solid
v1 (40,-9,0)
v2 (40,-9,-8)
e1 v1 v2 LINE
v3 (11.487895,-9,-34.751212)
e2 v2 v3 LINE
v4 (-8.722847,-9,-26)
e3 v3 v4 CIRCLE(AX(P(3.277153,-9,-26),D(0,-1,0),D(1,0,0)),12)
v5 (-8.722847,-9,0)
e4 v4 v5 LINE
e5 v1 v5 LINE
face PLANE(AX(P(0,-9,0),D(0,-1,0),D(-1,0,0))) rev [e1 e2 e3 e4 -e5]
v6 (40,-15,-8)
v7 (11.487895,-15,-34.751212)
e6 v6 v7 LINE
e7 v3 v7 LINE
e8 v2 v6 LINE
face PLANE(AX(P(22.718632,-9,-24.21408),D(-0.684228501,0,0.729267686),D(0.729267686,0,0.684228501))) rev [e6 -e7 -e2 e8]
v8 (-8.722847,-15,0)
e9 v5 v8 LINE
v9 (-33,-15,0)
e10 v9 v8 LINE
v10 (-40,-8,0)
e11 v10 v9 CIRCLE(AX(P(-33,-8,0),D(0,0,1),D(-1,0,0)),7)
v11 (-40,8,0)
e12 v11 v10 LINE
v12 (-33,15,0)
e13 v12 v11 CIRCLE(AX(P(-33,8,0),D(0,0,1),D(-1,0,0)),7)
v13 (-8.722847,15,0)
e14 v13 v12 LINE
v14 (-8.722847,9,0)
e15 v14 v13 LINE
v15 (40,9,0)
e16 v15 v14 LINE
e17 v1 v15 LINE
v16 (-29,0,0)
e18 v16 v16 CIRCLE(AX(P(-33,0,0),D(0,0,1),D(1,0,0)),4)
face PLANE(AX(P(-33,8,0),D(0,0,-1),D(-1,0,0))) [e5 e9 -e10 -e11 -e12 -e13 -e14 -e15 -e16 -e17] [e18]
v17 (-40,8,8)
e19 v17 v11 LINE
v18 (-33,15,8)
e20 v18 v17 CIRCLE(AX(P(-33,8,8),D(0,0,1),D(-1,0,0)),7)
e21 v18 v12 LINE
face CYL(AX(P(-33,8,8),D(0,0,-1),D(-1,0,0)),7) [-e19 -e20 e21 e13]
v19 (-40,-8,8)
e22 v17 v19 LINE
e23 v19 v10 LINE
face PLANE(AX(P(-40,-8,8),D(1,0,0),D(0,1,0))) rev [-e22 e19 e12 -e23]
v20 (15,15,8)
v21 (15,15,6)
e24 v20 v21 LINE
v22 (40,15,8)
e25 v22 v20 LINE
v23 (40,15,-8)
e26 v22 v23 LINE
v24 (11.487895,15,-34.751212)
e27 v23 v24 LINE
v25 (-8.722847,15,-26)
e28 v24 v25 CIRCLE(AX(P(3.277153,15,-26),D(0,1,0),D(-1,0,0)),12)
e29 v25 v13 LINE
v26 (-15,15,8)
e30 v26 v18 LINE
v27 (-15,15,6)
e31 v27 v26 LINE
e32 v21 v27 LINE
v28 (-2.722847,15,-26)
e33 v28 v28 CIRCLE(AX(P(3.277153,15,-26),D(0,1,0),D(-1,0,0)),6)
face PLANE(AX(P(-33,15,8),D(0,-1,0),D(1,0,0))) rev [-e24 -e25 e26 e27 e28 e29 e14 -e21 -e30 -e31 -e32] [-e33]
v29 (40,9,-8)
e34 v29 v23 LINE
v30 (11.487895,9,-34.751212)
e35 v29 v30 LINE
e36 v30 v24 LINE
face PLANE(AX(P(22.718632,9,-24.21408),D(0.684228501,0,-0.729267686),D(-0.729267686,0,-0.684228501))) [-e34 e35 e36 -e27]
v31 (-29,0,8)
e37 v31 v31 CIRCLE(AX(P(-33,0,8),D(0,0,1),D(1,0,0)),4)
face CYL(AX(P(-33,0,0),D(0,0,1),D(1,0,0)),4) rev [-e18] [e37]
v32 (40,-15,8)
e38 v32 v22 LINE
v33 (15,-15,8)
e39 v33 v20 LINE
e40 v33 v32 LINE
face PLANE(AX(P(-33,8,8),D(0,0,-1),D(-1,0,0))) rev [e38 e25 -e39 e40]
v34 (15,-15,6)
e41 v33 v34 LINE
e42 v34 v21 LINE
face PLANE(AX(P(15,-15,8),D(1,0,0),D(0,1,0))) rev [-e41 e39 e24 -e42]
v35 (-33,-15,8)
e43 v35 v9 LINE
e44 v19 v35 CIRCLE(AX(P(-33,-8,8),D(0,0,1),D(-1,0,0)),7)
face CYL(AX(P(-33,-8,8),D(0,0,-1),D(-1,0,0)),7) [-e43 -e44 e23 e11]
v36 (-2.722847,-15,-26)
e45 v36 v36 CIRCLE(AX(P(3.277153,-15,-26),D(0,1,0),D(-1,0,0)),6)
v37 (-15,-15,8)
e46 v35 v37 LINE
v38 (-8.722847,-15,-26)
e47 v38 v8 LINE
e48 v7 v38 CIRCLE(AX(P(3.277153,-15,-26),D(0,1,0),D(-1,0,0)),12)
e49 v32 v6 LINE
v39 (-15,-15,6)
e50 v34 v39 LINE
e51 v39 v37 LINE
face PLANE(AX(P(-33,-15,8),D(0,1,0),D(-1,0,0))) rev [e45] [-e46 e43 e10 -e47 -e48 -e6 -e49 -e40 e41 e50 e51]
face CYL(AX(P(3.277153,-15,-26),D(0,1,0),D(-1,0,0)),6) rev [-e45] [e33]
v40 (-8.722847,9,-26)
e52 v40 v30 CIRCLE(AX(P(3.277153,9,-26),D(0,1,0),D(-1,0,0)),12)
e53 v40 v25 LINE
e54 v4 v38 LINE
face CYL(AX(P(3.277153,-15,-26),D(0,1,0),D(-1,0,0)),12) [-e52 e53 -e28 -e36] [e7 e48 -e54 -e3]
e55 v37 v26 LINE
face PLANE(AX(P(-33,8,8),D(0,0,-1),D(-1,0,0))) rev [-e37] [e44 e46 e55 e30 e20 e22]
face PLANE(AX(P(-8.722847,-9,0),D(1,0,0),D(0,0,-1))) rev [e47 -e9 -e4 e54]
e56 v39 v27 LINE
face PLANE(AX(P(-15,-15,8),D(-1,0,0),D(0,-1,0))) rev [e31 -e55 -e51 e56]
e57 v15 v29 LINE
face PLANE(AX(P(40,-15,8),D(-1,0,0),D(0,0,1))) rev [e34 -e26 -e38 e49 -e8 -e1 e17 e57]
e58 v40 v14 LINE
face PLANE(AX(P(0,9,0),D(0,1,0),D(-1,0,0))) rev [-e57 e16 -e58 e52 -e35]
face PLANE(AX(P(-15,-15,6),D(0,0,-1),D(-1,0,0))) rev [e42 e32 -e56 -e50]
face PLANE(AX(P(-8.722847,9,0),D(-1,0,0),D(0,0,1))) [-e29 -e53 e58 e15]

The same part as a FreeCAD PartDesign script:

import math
import FreeCAD as App
import Part
import Sketcher
from FreeCAD import Vector


def add_polygon(sketch, points):
    """Adds a closed chain of lines whose ends are joined by coincident constraints."""
    first, n = sketch.GeometryCount, len(points)
    for a, b in zip(points, points[1:] + points[:1]):
        sketch.addGeometry(Part.LineSegment(App.Vector(*a, 0), App.Vector(*b, 0)), False)
    for i in range(n):
        sketch.addConstraint(Sketcher.Constraint("Coincident", first + i, 2, first + (i + 1) % n, 1))

doc = App.newDocument("Part")
body = doc.addObject("PartDesign::Body", "Body")

# Sketch on XY plane
sketch1 = doc.addObject("Sketcher::SketchObject", "Sketch")
body.addObject(sketch1)
sketch1.AttachmentSupport = (doc.XY_Plane, [""])
sketch1.MapMode = "FlatFace"
sketch1.addGeometry([
    Part.LineSegment(Vector(-33, -15, 0), Vector(40, -15, 0)),  # 0
    Part.LineSegment(Vector(40, -15, 0), Vector(40, 15, 0)),  # 1
    Part.LineSegment(Vector(40, 15, 0), Vector(-33, 15, 0)),  # 2
    Part.ArcOfCircle(Part.Circle(Vector(-33, 8, 0), Vector(0, 0, 1), 7), math.radians(90), math.radians(180)),  # 3
    Part.LineSegment(Vector(-40, 8, 0), Vector(-40, -8, 0)),  # 4
    Part.ArcOfCircle(Part.Circle(Vector(-33, -8, 0), Vector(0, 0, 1), 7), math.radians(-180), math.radians(-90)),  # 5
], False)
sketch1.addConstraint([
    Sketcher.Constraint("Coincident", 0, 2, 1, 1),
    Sketcher.Constraint("Coincident", 1, 2, 2, 1),
    Sketcher.Constraint("Tangent", 2, 2, 3, 1),
    Sketcher.Constraint("Tangent", 3, 2, 4, 1),
    Sketcher.Constraint("Tangent", 4, 2, 5, 1),
    Sketcher.Constraint("Tangent", 5, 2, 0, 1),
    Sketcher.Constraint("Horizontal", 0),
    Sketcher.Constraint("Vertical", 1),
    Sketcher.Constraint("Horizontal", 2),
    Sketcher.Constraint("Vertical", 4),
    Sketcher.Constraint("Equal", 3, 5),
    Sketcher.Constraint("Radius", 3, 7.0),
    Sketcher.Constraint("DistanceX", 0, 1, 0, 2, 73.0),
    Sketcher.Constraint("DistanceY", 1, 1, 1, 2, 30.0),
    Sketcher.Constraint("DistanceX", 3, 3, -1, 1, 33.0),
    Sketcher.Constraint("DistanceY", -1, 1, 3, 3, 8.0),
])
pad1 = doc.addObject("PartDesign::Pad", "Pad")
body.addObject(pad1)
pad1.Profile = sketch1
pad1.Length = 8

# Sketch on XY plane
sketch2 = doc.addObject("Sketcher::SketchObject", "Sketch001")
body.addObject(sketch2)
sketch2.AttachmentSupport = (doc.XY_Plane, [""])
sketch2.MapMode = "FlatFace"
sketch2.AttachmentOffset = App.Placement(Vector(0, 0, 8), App.Rotation())
sketch2.addGeometry(Part.Circle(Vector(-33, 0, 0), Vector(0, 0, 1), 4), False)
sketch2.addConstraint([
    Sketcher.Constraint("PointOnObject", 0, 3, -1),
    Sketcher.Constraint("Diameter", 0, 8.0),
    Sketcher.Constraint("DistanceX", 0, 3, -1, 1, 33.0),
])
pocket1 = doc.addObject("PartDesign::Pocket", "Pocket")
body.addObject(pocket1)
pocket1.Profile = sketch2
pocket1.Type = "ThroughAll"

# Sketch on XZ plane
sketch3 = doc.addObject("Sketcher::SketchObject", "Sketch002")
body.addObject(sketch3)
sketch3.AttachmentSupport = (doc.XZ_Plane, [""])
sketch3.MapMode = "FlatFace"
sketch3.AttachmentOffset = App.Placement(Vector(0, 0, -15), App.Rotation())
add_polygon(sketch3, [(-9, 0), (40, 0), (40, -8), (21, -26), (11, -35), (-9, -26)])  # lines 0-5
sketch3.addConstraint([
    Sketcher.Constraint("Horizontal", 0),
    Sketcher.Constraint("Vertical", 1),
    Sketcher.Constraint("Vertical", 5),
    Sketcher.Constraint("PointOnObject", 0, 2, -1),
    Sketcher.Constraint("Parallel", 2, 3),
    Sketcher.Constraint("Horizontal", 2, 2, 4, 2),
    Sketcher.Constraint("DistanceY", 1, 2, 1, 1, 8.0),
    Sketcher.Constraint("DistanceY", 5, 1, 5, 2, 26.0),
    Sketcher.Constraint("DistanceX", -1, 1, 0, 2, 40.0),
    Sketcher.Constraint("Distance", 2, 26.307001),
    Sketcher.Constraint("DistanceX", 4, 2, 2, 2, 29.538001),
    Sketcher.Constraint("DistanceX", 3, 2, 2, 2, 9.327259),
])
pad2 = doc.addObject("PartDesign::Pad", "Pad001")
body.addObject(pad2)
pad2.Profile = sketch3
pad2.Length = 6
doc.recompute()

mirrored = doc.addObject("PartDesign::Mirrored", "Mirrored")
body.addObject(mirrored)
mirrored.Originals = [pad2]
mirrored.MirrorPlane = (doc.XZ_Plane, [""])
body.Tip = mirrored

# Sketch on XZ plane
sketch4 = doc.addObject("Sketcher::SketchObject", "Sketch003")
body.addObject(sketch4)
sketch4.AttachmentSupport = (doc.XZ_Plane, [""])
sketch4.MapMode = "FlatFace"
sketch4.AttachmentOffset = App.Placement(Vector(0, 0, -15), App.Rotation())
sketch4.addGeometry(Part.Circle(Vector(3, -26, 0), Vector(0, 0, 1), 12), False)
sketch4.addConstraint([
    Sketcher.Constraint("Diameter", 0, 24.0),
    Sketcher.Constraint("DistanceY", 0, 3, -1, 1, 26.0),
    Sketcher.Constraint("DistanceX", -1, 1, 0, 3, 3.277153),
])
pad3 = doc.addObject("PartDesign::Pad", "Pad002")
body.addObject(pad3)
pad3.Profile = sketch4
pad3.Type = "UpToLast"

# Sketch on XZ plane
sketch5 = doc.addObject("Sketcher::SketchObject", "Sketch004")
body.addObject(sketch5)
sketch5.AttachmentSupport = (doc.XZ_Plane, [""])
sketch5.MapMode = "FlatFace"
sketch5.AttachmentOffset = App.Placement(Vector(0, 0, -15), App.Rotation())
sketch5.addGeometry(Part.Circle(Vector(3, -26, 0), Vector(0, 0, 1), 6), False)
sketch5.addConstraint([
    Sketcher.Constraint("Diameter", 0, 12.0),
    Sketcher.Constraint("DistanceY", 0, 3, -1, 1, 26.0),
    Sketcher.Constraint("DistanceX", -1, 1, 0, 3, 3.277153),
])
pocket2 = doc.addObject("PartDesign::Pocket", "Pocket001")
body.addObject(pocket2)
pocket2.Profile = sketch5
pocket2.Type = "ThroughAll"
pocket2.Reversed = True

# Sketch on XZ plane
sketch6 = doc.addObject("Sketcher::SketchObject", "Sketch005")
body.addObject(sketch6)
sketch6.AttachmentSupport = (doc.XZ_Plane, [""])
sketch6.MapMode = "FlatFace"
sketch6.AttachmentOffset = App.Placement(Vector(0, 0, -15), App.Rotation())
add_polygon(sketch6, [(-15, 6), (-15, 8), (15, 8), (15, 6)])  # lines 0-3
sketch6.addConstraint([
    Sketcher.Constraint("Vertical", 0),
    Sketcher.Constraint("Horizontal", 1),
    Sketcher.Constraint("Vertical", 2),
    Sketcher.Constraint("Horizontal", 3),
    Sketcher.Constraint("DistanceX", 1, 1, 1, 2, 30.0),
    Sketcher.Constraint("DistanceY", 0, 1, 0, 2, 2.0),
    Sketcher.Constraint("DistanceX", 0, 2, -1, 1, 15.0),
    Sketcher.Constraint("DistanceY", -1, 1, 0, 2, 8.0),
])
pocket3 = doc.addObject("PartDesign::Pocket", "Pocket002")
body.addObject(pocket3)
pocket3.Profile = sketch6
pocket3.Type = "ThroughAll"
pocket3.Reversed = True

doc.recompute()
